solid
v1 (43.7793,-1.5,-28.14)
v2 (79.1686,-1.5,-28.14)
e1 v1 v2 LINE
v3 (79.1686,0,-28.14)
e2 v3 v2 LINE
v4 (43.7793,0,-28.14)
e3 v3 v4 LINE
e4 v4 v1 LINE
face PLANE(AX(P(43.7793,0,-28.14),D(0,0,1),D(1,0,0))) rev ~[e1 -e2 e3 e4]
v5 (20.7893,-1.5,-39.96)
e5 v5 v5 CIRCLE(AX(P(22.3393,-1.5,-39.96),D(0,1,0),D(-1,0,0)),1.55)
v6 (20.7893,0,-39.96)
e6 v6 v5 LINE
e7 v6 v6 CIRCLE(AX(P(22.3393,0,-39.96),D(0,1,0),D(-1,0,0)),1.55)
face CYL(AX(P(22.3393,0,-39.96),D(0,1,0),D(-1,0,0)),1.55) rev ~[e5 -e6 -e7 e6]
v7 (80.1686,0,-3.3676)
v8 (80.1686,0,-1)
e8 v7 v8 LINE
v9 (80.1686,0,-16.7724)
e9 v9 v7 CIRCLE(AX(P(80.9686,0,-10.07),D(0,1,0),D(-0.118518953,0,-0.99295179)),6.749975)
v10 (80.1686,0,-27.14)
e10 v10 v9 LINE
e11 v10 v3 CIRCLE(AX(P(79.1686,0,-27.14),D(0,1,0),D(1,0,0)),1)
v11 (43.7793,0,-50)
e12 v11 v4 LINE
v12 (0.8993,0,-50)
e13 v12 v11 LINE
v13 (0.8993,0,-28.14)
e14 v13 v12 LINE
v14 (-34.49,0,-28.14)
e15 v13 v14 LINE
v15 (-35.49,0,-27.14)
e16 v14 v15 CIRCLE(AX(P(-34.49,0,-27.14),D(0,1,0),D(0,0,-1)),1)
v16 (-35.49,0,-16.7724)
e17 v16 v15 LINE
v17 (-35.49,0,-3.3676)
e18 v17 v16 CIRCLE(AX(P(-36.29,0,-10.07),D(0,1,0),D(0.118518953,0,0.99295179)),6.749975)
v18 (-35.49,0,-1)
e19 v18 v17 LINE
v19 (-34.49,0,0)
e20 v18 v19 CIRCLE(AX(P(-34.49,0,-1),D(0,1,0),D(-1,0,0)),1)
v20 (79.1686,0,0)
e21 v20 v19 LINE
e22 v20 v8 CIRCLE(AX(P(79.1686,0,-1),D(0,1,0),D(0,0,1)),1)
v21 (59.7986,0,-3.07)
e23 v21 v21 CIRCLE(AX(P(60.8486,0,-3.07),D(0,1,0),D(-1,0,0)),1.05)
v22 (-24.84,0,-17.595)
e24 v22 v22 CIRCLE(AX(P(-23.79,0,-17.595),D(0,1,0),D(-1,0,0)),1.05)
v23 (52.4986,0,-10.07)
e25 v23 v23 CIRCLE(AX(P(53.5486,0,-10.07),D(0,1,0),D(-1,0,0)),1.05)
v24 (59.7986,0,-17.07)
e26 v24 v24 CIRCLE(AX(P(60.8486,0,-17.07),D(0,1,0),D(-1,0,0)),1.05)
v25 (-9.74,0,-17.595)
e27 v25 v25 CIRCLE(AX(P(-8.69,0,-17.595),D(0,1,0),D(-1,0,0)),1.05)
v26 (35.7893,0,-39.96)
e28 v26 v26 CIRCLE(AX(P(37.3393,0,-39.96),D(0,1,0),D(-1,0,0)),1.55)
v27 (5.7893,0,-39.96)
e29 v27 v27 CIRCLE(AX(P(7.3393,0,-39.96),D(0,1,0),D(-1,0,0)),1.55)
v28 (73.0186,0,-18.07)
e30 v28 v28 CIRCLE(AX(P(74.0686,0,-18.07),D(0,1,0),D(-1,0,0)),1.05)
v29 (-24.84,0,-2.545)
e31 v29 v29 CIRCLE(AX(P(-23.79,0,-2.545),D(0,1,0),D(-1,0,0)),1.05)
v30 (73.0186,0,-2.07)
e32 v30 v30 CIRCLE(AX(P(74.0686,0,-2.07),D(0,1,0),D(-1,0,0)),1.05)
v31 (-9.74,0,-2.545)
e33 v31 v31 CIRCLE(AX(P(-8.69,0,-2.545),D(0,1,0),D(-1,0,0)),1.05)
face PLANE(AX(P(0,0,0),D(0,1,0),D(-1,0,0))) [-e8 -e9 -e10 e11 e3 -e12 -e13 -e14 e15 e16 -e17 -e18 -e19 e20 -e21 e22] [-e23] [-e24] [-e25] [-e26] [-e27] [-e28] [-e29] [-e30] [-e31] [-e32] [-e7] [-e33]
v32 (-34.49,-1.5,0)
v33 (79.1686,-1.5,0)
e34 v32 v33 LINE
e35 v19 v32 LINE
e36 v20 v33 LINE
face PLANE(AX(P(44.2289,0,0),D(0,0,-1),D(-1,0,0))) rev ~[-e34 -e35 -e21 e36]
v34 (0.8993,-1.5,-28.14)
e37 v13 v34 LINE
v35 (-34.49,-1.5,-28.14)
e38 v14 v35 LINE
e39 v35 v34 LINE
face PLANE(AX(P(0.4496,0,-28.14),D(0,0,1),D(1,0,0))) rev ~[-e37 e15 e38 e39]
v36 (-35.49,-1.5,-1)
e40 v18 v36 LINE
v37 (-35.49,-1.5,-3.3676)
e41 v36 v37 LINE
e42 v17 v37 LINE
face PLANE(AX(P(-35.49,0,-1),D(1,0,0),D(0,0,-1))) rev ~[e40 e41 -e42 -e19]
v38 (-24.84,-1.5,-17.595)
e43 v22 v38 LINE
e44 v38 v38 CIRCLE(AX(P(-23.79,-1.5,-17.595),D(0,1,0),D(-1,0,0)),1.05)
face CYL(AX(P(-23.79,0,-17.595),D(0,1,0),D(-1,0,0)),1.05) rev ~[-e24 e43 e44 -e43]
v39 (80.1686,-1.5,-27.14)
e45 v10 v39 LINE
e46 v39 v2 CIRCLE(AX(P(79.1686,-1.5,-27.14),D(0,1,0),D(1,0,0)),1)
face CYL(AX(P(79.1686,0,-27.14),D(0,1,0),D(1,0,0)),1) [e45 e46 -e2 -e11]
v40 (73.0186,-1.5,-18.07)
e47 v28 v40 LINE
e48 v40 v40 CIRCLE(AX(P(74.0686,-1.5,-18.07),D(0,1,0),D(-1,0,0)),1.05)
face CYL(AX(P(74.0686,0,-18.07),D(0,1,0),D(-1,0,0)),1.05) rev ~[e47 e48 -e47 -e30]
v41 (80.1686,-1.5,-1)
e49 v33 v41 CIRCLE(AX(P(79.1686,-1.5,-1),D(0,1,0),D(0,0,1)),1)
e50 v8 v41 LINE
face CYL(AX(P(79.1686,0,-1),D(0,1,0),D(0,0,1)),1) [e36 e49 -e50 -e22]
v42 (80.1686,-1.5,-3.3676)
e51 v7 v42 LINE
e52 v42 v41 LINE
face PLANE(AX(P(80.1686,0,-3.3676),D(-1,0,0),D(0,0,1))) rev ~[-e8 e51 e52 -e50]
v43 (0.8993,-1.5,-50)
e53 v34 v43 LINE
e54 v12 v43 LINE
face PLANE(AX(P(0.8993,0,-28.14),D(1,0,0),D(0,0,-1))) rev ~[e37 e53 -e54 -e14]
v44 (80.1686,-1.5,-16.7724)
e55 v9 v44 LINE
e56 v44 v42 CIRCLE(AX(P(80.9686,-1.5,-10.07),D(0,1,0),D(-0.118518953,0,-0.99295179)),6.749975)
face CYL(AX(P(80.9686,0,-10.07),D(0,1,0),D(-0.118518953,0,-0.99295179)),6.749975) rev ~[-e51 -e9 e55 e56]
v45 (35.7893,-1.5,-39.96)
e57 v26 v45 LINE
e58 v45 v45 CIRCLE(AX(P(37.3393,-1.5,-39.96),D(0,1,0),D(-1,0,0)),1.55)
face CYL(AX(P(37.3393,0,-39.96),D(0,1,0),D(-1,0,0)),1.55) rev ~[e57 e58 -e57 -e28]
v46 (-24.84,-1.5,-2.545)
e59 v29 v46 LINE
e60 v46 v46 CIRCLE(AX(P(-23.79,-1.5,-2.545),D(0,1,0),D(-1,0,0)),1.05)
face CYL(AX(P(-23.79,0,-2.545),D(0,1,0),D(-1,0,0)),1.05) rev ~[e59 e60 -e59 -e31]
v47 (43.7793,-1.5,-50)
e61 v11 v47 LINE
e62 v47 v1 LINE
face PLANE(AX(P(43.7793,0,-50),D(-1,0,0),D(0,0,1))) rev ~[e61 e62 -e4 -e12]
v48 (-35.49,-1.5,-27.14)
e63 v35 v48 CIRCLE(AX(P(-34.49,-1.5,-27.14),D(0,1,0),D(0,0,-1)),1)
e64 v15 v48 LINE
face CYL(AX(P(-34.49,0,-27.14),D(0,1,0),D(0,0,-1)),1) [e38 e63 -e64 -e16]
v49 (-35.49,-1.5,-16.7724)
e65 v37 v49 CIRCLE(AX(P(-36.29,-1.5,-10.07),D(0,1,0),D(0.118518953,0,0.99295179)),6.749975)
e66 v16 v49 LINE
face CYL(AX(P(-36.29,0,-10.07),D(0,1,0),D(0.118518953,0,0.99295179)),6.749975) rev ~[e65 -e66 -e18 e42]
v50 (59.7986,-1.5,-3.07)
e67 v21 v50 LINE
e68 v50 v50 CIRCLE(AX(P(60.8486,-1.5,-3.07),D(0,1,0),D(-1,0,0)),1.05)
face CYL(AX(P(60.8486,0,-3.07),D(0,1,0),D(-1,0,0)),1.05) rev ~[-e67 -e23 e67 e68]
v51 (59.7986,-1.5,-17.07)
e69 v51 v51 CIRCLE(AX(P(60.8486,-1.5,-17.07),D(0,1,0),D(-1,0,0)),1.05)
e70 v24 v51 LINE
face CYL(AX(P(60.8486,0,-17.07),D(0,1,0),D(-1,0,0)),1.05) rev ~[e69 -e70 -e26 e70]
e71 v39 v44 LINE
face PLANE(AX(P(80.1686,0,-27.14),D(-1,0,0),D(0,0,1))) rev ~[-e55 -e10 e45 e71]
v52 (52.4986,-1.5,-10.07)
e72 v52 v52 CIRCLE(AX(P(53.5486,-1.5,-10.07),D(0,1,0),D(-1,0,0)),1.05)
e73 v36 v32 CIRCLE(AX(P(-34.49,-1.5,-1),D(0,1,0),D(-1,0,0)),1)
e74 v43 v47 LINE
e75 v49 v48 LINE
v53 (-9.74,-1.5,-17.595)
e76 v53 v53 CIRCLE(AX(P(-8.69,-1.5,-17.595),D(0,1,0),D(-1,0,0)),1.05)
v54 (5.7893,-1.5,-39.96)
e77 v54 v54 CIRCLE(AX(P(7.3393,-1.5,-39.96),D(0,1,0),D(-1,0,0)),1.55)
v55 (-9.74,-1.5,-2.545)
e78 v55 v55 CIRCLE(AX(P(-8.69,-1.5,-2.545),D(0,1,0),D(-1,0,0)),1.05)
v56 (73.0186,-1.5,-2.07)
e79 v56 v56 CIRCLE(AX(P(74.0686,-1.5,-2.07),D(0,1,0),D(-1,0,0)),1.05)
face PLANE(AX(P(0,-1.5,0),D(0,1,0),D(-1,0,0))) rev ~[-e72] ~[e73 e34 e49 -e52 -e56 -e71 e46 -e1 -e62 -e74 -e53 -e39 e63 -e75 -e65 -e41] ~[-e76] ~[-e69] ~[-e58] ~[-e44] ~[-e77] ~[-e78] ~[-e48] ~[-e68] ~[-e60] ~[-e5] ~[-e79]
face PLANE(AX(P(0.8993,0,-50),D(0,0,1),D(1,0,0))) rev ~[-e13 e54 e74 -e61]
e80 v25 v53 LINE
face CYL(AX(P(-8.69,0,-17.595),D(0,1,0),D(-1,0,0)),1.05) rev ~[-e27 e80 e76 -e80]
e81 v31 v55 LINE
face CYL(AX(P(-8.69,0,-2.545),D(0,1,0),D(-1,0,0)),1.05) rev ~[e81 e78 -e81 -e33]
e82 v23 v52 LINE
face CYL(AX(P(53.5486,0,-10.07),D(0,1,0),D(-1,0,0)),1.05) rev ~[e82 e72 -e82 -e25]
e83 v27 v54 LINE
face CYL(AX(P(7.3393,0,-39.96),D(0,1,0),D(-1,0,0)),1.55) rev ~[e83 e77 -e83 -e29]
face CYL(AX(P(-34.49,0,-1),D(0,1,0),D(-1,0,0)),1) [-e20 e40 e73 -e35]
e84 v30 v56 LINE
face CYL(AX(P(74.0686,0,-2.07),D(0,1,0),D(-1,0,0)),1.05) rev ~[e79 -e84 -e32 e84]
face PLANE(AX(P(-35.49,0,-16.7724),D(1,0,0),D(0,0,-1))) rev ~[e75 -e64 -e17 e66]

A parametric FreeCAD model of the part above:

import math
import FreeCAD as App
import Part
import Sketcher

V = App.Vector
Q = App.Units.Quantity

doc = App.newDocument("Part")
body = doc.addObject("PartDesign::Body", "Body")

sketch1 = doc.addObject("Sketcher::SketchObject", "Sketch")
body.addObject(sketch1)
sketch1.AttachmentSupport = (doc.XZ_Plane, [""])
sketch1.MapMode = "FlatFace"
sketch1.addGeometry([
    Part.ArcOfCircle(Part.Circle(V(79.2, -1, 0), V(0, 0, 1), 1), math.radians(0), math.radians(90)),
    Part.LineSegment(V(80.2, -1, 0), V(80.2, -3.4, 0)),
    Part.ArcOfCircle(Part.Circle(V(81, -10.1, 0), V(0, 0, 1), 6.7), math.radians(97), math.radians(263)),
    Part.LineSegment(V(80.2, -16.8, 0), V(80.2, -27.1, 0)),
    Part.ArcOfCircle(Part.Circle(V(79.2, -27.1, 0), V(0, 0, 1), 1), math.radians(-90), math.radians(0)),
    Part.LineSegment(V(79.2, -28.1, 0), V(43.8, -28.1, 0)),
    Part.LineSegment(V(43.8, -28.1, 0), V(43.8, -50, 0)),
    Part.LineSegment(V(43.8, -50, 0), V(0.9, -50, 0)),
    Part.LineSegment(V(0.9, -50, 0), V(0.9, -28.1, 0)),
    Part.LineSegment(V(0.9, -28.1, 0), V(-34.5, -28.1, 0)),
    Part.ArcOfCircle(Part.Circle(V(-34.5, -27.1, 0), V(0, 0, 1), 1), math.radians(180), math.radians(270)),
    Part.LineSegment(V(-35.5, -27.1, 0), V(-35.5, -16.8, 0)),
    Part.ArcOfCircle(Part.Circle(V(-36.3, -10.1, 0), V(0, 0, 1), 6.7), math.radians(-83), math.radians(83)),
    Part.LineSegment(V(-35.5, -3.4, 0), V(-35.5, -1, 0)),
    Part.ArcOfCircle(Part.Circle(V(-34.5, -1, 0), V(0, 0, 1), 1), math.radians(90), math.radians(180)),
    Part.LineSegment(V(-34.5, 0, 0), V(79.2, 0, 0)),
    Part.Circle(V(7.3, -40, 0), V(0, 0, 1), 1.6),
    Part.Circle(V(37.3, -40, 0), V(0, 0, 1), 1.6),
    Part.Circle(V(22.3, -40, 0), V(0, 0, 1), 1.6),
    Part.Circle(V(60.8, -3.1, 0), V(0, 0, 1), 1.1),
    Part.Circle(V(74.1, -18.1, 0), V(0, 0, 1), 1.1),
    Part.Circle(V(60.8, -17.1, 0), V(0, 0, 1), 1.1),
    Part.Circle(V(53.5, -10.1, 0), V(0, 0, 1), 1.1),
    Part.Circle(V(74.1, -2.1, 0), V(0, 0, 1), 1.1),
    Part.Circle(V(-23.8, -2.5, 0), V(0, 0, 1), 1.1),
    Part.Circle(V(-8.7, -17.6, 0), V(0, 0, 1), 1.1),
    Part.Circle(V(-23.8, -17.6, 0), V(0, 0, 1), 1.1),
    Part.Circle(V(-8.7, -2.5, 0), V(0, 0, 1), 1.1),
], False)
sketch1.addConstraint([
    Sketcher.Constraint("Tangent", 0, 1, 1, 1),
    Sketcher.Constraint("Coincident", 1, 2, 2, 1),
    Sketcher.Constraint("Coincident", 2, 2, 3, 1),
    Sketcher.Constraint("Tangent", 3, 2, 4, 2),
    Sketcher.Constraint("Tangent", 4, 1, 5, 1),
    Sketcher.Constraint("Coincident", 5, 2, 6, 1),
    Sketcher.Constraint("Coincident", 6, 2, 7, 1),
    Sketcher.Constraint("Coincident", 7, 2, 8, 1),
    Sketcher.Constraint("Coincident", 8, 2, 9, 1),
    Sketcher.Constraint("Tangent", 9, 2, 10, 2),
    Sketcher.Constraint("Tangent", 10, 1, 11, 1),
    Sketcher.Constraint("Coincident", 11, 2, 12, 1),
    Sketcher.Constraint("Coincident", 12, 2, 13, 1),
    Sketcher.Constraint("Tangent", 13, 2, 14, 2),
    Sketcher.Constraint("Tangent", 14, 1, 15, 1),
    Sketcher.Constraint("Tangent", 15, 2, 0, 2),
    Sketcher.Constraint("Vertical", 1),
    Sketcher.Constraint("Vertical", 3),
    Sketcher.Constraint("Horizontal", 5),
    Sketcher.Constraint("Vertical", 6),
    Sketcher.Constraint("Horizontal", 7),
    Sketcher.Constraint("Vertical", 8),
    Sketcher.Constraint("Horizontal", 9),
    Sketcher.Constraint("Vertical", 11),
    Sketcher.Constraint("Vertical", 13),
    Sketcher.Constraint("Horizontal", 15),
    Sketcher.Constraint("Equal", 0, 4),
    Sketcher.Constraint("Equal", 4, 10),
    Sketcher.Constraint("Equal", 2, 12),
    Sketcher.Constraint("Equal", 10, 14),
    Sketcher.Constraint("Equal", 16, 17),
    Sketcher.Constraint("Equal", 17, 18),
    Sketcher.Constraint("Equal", 19, 20),
    Sketcher.Constraint("Equal", 20, 21),
    Sketcher.Constraint("Equal", 21, 22),
    Sketcher.Constraint("Equal", 22, 23),
    Sketcher.Constraint("Equal", 23, 24),
    Sketcher.Constraint("Equal", 24, 25),
    Sketcher.Constraint("Equal", 25, 26),
    Sketcher.Constraint("Equal", 26, 27),
    Sketcher.Constraint("PointOnObject", 14, 1, -1),
    Sketcher.Constraint("Horizontal", 4, 3, 10, 3),
    Sketcher.Constraint("Horizontal", 2, 3, 12, 3),
    Sketcher.Constraint("Horizontal", 16, 3, 17, 3),
    Sketcher.Constraint("Horizontal", 17, 3, 18, 3),
    Sketcher.Constraint("Horizontal", 12, 3, 22, 3),
    Sketcher.Constraint("Horizontal", 25, 3, 26, 3),
    Sketcher.Constraint("Horizontal", 24, 3, 27, 3),
    Sketcher.Constraint("Horizontal", 2, 2, 11, 2),
    Sketcher.Constraint("Horizontal", 1, 2, 12, 2),
    Sketcher.Constraint("Vertical", 0, 3, 4, 3),
    Sketcher.Constraint("Vertical", 19, 3, 21, 3),
    Sketcher.Constraint("Vertical", 20, 3, 23, 3),
    Sketcher.Constraint("Vertical", 24, 3, 26, 3),
    Sketcher.Constraint("Vertical", 25, 3, 27, 3),
    Sketcher.Constraint("Equal", 5, 9),
    Sketcher.Constraint("Radius", 0, Q("1 mm")),
    Sketcher.Constraint("Diameter", 16, Q("3.1 mm")),
    Sketcher.Constraint("Diameter", 19, Q("2.1 mm")),
    Sketcher.Constraint("Radius", 2, Q("6.75 mm")),
    Sketcher.Constraint("DistanceY", 6, 2, -1, 1, Q("50 mm")),
    Sketcher.Constraint("DistanceX", 16, 3, 17, 3, Q("30 mm")),
    Sketcher.Constraint("DistanceX", 18, 3, 17, 3, Q("15 mm")),
    Sketcher.Constraint("DistanceY", 2, 3, 19, 3, Q("7 mm")),
    Sketcher.Constraint("DistanceY", 20, 3, 2, 3, Q("8 mm")),
    Sketcher.Constraint("DistanceY", 20, 3, 21, 3, Q("1 mm")),
    Sketcher.Constraint("DistanceY", 2, 3, 23, 3, Q("8 mm")),
    Sketcher.Constraint("DistanceX", 7, 2, 7, 1, Q("42.88 mm")),
    Sketcher.Constraint("DistanceY", 6, 2, 6, 1, Q("21.86 mm")),
    Sketcher.Constraint("DistanceX", 0, 3, 2, 3, Q("1.8 mm")),
    Sketcher.Constraint("DistanceX", 20, 3, 4, 3, Q("5.1 mm")),
    Sketcher.Constraint("DistanceX", 22, 3, 19, 3, Q("7.3 mm")),
    Sketcher.Constraint("DistanceX", 14, 3, 24, 3, Q("10.7 mm")),
    Sketcher.Constraint("DistanceX", 24, 3, 25, 3, Q("15.1 mm")),
    Sketcher.Constraint("DistanceY", 2, 3, -1, 1, Q("10.07 mm")),
    Sketcher.Constraint("DistanceX", 10, 3, -1, 1, Q("34.49 mm")),
    Sketcher.Constraint("DistanceY", 16, 3, -1, 1, Q("39.96 mm")),
    Sketcher.Constraint("DistanceX", 19, 3, 0, 3, Q("18.32 mm")),
    Sketcher.Constraint("DistanceY", 25, 3, 24, 3, Q("15.05 mm")),
    Sketcher.Constraint("DistanceX", 17, 3, 5, 2, Q("6.44 mm")),
    Sketcher.Constraint("DistanceX", 5, 2, 5, 1, Q("35.3893 mm")),
    Sketcher.Constraint("DistanceY", 24, 3, -1, 1, Q("2.545 mm")),
])
pad1 = doc.addObject("PartDesign::Pad", "Pad")
body.addObject(pad1)
pad1.Profile = sketch1
pad1.Length = 1.5

doc.recompute()
